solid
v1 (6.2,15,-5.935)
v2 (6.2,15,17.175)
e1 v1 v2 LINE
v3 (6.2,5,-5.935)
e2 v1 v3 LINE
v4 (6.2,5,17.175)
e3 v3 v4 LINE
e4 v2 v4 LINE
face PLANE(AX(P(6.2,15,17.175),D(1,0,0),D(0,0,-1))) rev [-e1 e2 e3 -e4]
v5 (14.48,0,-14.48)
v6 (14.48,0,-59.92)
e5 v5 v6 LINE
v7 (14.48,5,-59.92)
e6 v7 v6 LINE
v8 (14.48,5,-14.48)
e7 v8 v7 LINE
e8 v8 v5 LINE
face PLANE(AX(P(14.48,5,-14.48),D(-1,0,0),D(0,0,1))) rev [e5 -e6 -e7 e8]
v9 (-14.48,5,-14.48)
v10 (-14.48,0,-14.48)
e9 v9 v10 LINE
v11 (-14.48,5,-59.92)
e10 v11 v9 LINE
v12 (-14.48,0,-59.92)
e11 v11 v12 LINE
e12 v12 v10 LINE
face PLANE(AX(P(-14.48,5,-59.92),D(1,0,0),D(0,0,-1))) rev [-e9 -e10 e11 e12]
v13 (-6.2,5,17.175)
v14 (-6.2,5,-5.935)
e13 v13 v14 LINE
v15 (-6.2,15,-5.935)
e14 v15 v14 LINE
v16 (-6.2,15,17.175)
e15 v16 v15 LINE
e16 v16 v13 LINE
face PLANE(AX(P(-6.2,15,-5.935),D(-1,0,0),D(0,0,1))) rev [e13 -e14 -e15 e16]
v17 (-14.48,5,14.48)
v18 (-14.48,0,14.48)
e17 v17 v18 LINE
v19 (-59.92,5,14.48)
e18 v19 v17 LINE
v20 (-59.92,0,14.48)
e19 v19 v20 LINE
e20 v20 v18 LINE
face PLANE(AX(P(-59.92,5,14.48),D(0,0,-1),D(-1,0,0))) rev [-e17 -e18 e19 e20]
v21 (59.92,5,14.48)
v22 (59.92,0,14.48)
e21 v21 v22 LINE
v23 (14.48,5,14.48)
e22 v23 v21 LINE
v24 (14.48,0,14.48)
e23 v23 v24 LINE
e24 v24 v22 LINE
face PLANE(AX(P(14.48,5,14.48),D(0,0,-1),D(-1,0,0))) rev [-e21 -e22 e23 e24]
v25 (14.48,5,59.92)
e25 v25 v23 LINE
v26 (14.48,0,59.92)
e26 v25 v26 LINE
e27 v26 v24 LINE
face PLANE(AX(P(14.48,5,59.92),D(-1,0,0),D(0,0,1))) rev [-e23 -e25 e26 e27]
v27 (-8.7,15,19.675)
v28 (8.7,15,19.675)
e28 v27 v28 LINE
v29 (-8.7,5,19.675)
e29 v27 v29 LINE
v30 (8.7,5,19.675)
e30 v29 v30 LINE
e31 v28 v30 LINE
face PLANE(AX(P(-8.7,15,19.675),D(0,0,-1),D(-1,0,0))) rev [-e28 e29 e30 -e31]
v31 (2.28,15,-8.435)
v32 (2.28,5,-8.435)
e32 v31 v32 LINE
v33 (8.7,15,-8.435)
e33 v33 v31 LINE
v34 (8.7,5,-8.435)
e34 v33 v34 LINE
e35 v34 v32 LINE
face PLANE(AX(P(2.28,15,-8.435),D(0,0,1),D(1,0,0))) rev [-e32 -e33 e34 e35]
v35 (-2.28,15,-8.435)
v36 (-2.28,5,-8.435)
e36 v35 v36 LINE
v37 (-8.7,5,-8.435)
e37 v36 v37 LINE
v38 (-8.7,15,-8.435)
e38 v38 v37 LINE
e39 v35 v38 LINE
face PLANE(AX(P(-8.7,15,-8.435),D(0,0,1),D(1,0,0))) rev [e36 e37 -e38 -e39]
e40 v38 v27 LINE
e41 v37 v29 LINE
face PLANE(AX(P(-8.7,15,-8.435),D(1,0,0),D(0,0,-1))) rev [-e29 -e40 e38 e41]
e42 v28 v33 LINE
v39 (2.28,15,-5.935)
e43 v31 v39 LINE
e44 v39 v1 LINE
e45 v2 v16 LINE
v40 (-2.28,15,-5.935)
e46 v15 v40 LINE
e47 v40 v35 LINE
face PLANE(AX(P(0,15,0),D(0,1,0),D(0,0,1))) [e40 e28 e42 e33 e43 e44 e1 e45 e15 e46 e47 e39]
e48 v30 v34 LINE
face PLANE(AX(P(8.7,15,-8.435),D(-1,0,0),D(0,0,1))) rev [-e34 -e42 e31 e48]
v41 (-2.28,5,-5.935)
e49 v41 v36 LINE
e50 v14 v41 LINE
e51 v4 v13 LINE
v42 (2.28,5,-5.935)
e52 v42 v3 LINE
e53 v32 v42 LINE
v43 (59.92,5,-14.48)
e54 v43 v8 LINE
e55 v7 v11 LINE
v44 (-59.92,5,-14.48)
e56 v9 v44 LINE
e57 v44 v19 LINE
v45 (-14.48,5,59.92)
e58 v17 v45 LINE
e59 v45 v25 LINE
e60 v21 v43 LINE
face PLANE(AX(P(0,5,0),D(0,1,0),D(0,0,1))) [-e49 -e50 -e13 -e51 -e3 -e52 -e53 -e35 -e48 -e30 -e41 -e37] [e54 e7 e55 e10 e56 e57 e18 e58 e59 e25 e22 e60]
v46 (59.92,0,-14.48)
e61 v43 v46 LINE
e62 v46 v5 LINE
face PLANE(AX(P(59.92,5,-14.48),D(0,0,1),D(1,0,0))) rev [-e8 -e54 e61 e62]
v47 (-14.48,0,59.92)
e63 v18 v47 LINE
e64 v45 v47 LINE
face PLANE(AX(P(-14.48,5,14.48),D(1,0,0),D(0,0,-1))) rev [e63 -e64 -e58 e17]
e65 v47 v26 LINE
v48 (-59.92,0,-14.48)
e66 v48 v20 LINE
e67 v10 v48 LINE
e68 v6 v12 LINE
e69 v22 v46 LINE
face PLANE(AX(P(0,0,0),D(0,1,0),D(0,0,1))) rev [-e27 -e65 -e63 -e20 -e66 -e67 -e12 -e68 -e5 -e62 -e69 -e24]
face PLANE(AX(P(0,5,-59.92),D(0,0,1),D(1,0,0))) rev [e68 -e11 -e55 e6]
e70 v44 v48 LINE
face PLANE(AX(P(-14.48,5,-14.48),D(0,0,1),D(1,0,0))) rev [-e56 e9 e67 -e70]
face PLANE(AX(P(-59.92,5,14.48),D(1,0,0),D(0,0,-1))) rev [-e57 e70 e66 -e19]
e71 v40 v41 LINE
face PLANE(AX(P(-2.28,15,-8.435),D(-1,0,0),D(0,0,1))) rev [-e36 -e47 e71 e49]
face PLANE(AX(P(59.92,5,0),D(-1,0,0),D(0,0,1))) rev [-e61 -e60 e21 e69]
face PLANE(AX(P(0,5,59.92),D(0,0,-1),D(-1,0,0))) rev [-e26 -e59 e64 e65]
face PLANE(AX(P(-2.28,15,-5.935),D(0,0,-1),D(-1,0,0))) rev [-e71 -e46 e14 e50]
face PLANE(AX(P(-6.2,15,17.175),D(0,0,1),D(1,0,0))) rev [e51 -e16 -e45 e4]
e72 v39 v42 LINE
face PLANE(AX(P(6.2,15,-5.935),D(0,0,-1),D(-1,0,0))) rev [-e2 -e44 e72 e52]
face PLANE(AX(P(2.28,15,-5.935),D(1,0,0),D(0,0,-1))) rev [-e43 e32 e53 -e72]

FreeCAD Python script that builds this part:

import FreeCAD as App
import Part
import Sketcher

doc = App.newDocument("Part")
body = doc.addObject("PartDesign::Body", "Body")

# Sketch on XZ plane
sketch1 = body.newObject("Sketcher::SketchObject", "Sketch")
sketch1.AttachmentSupport = (doc.getObject("XZ_Plane"), [""])
sketch1.MapMode = "FlatFace"
sketch1.addGeometry(Part.LineSegment(App.Vector(-14.48, -59.92, 0), App.Vector(-14.48, -14.48, 0)), False)
sketch1.addGeometry(Part.LineSegment(App.Vector(-14.48, -14.48, 0), App.Vector(-59.92, -14.48, 0)), False)
sketch1.addGeometry(Part.LineSegment(App.Vector(-59.92, -14.48, 0), App.Vector(-59.92, 14.48, 0)), False)
sketch1.addGeometry(Part.LineSegment(App.Vector(-59.92, 14.48, 0), App.Vector(-14.48, 14.48, 0)), False)
sketch1.addGeometry(Part.LineSegment(App.Vector(-14.48, 14.48, 0), App.Vector(-14.48, 59.92, 0)), False)
sketch1.addGeometry(Part.LineSegment(App.Vector(-14.48, 59.92, 0), App.Vector(14.48, 59.92, 0)), False)
sketch1.addGeometry(Part.LineSegment(App.Vector(14.48, 59.92, 0), App.Vector(14.48, 14.48, 0)), False)
sketch1.addGeometry(Part.LineSegment(App.Vector(14.48, 14.48, 0), App.Vector(59.92, 14.48, 0)), False)
sketch1.addGeometry(Part.LineSegment(App.Vector(59.92, 14.48, 0), App.Vector(59.92, -14.48, 0)), False)
sketch1.addGeometry(Part.LineSegment(App.Vector(59.92, -14.48, 0), App.Vector(14.48, -14.48, 0)), False)
sketch1.addGeometry(Part.LineSegment(App.Vector(14.48, -14.48, 0), App.Vector(14.48, -59.92, 0)), False)
sketch1.addGeometry(Part.LineSegment(App.Vector(14.48, -59.92, 0), App.Vector(-14.48, -59.92, 0)), False)
sketch1.addConstraint(Sketcher.Constraint("Coincident", 0, 2, 1, 1))
sketch1.addConstraint(Sketcher.Constraint("Coincident", 1, 2, 2, 1))
sketch1.addConstraint(Sketcher.Constraint("Coincident", 2, 2, 3, 1))
sketch1.addConstraint(Sketcher.Constraint("Coincident", 3, 2, 4, 1))
sketch1.addConstraint(Sketcher.Constraint("Coincident", 4, 2, 5, 1))
sketch1.addConstraint(Sketcher.Constraint("Coincident", 5, 2, 6, 1))
sketch1.addConstraint(Sketcher.Constraint("Coincident", 6, 2, 7, 1))
sketch1.addConstraint(Sketcher.Constraint("Coincident", 7, 2, 8, 1))
sketch1.addConstraint(Sketcher.Constraint("Coincident", 8, 2, 9, 1))
sketch1.addConstraint(Sketcher.Constraint("Coincident", 9, 2, 10, 1))
sketch1.addConstraint(Sketcher.Constraint("Coincident", 10, 2, 11, 1))
sketch1.addConstraint(Sketcher.Constraint("Coincident", 11, 2, 0, 1))
sketch1.addConstraint(Sketcher.Constraint("Vertical", 0))
sketch1.addConstraint(Sketcher.Constraint("Horizontal", 1))
sketch1.addConstraint(Sketcher.Constraint("Vertical", 2))
sketch1.addConstraint(Sketcher.Constraint("Horizontal", 3))
sketch1.addConstraint(Sketcher.Constraint("Vertical", 4))
sketch1.addConstraint(Sketcher.Constraint("Horizontal", 5))
sketch1.addConstraint(Sketcher.Constraint("Vertical", 6))
sketch1.addConstraint(Sketcher.Constraint("Horizontal", 7))
sketch1.addConstraint(Sketcher.Constraint("Vertical", 8))
sketch1.addConstraint(Sketcher.Constraint("Horizontal", 9))
sketch1.addConstraint(Sketcher.Constraint("Vertical", 10))
sketch1.addConstraint(Sketcher.Constraint("Horizontal", 11))
sketch1.addConstraint(Sketcher.Constraint("Symmetric", 0, 2, 6, 2, -1, 1))
sketch1.addConstraint(Sketcher.Constraint("Symmetric", 2, 2, 8, 2, -1, 1))
sketch1.addConstraint(Sketcher.Constraint("Symmetric", 4, 2, 10, 2, -1, 1))
sketch1.addConstraint(Sketcher.Constraint("Symmetric", 3, 2, 6, 2, -2))
sketch1.addConstraint(Sketcher.Constraint("Equal", 9, 0))
sketch1.addConstraint(Sketcher.Constraint("Equal", 11, 2))
sketch1.addConstraint(Sketcher.Constraint("DistanceX", 1, 2, 1, 1, 45.44))
sketch1.addConstraint(Sketcher.Constraint("DistanceX", 5, 1, 5, 2, 28.96))
pad1 = body.newObject("PartDesign::Pad", "Pad")
pad1.Profile = sketch1
pad1.Length = 5
pad1.Reversed = True

# Sketch on XZ plane
sketch2 = body.newObject("Sketcher::SketchObject", "Sketch001")
sketch2.AttachmentSupport = (doc.getObject("XZ_Plane"), [""])
sketch2.MapMode = "FlatFace"
sketch2.AttachmentOffset = App.Placement(App.Vector(0, 0, -5), App.Rotation())
sketch2.addGeometry(Part.LineSegment(App.Vector(-2.28, -8.435, 0), App.Vector(-8.7, -8.435, 0)), False)
sketch2.addGeometry(Part.LineSegment(App.Vector(-8.7, -8.435, 0), App.Vector(-8.7, 19.675, 0)), False)
sketch2.addGeometry(Part.LineSegment(App.Vector(-8.7, 19.675, 0), App.Vector(8.7, 19.675, 0)), False)
sketch2.addGeometry(Part.LineSegment(App.Vector(8.7, 19.675, 0), App.Vector(8.7, -8.435, 0)), False)
sketch2.addGeometry(Part.LineSegment(App.Vector(8.7, -8.435, 0), App.Vector(2.28, -8.435, 0)), False)
sketch2.addGeometry(Part.LineSegment(App.Vector(2.28, -8.435, 0), App.Vector(2.28, -5.935, 0)), False)
sketch2.addGeometry(Part.LineSegment(App.Vector(2.28, -5.935, 0), App.Vector(6.2, -5.935, 0)), False)
sketch2.addGeometry(Part.LineSegment(App.Vector(6.2, -5.935, 0), App.Vector(6.2, 17.175, 0)), False)
sketch2.addGeometry(Part.LineSegment(App.Vector(6.2, 17.175, 0), App.Vector(-6.2, 17.175, 0)), False)
sketch2.addGeometry(Part.LineSegment(App.Vector(-6.2, 17.175, 0), App.Vector(-6.2, -5.935, 0)), False)
sketch2.addGeometry(Part.LineSegment(App.Vector(-6.2, -5.935, 0), App.Vector(-2.28, -5.935, 0)), False)
sketch2.addGeometry(Part.LineSegment(App.Vector(-2.28, -5.935, 0), App.Vector(-2.28, -8.435, 0)), False)
sketch2.addConstraint(Sketcher.Constraint("Coincident", 0, 2, 1, 1))
sketch2.addConstraint(Sketcher.Constraint("Coincident", 1, 2, 2, 1))
sketch2.addConstraint(Sketcher.Constraint("Coincident", 2, 2, 3, 1))
sketch2.addConstraint(Sketcher.Constraint("Coincident", 3, 2, 4, 1))
sketch2.addConstraint(Sketcher.Constraint("Coincident", 4, 2, 5, 1))
sketch2.addConstraint(Sketcher.Constraint("Coincident", 5, 2, 6, 1))
sketch2.addConstraint(Sketcher.Constraint("Coincident", 6, 2, 7, 1))
sketch2.addConstraint(Sketcher.Constraint("Coincident", 7, 2, 8, 1))
sketch2.addConstraint(Sketcher.Constraint("Coincident", 8, 2, 9, 1))
sketch2.addConstraint(Sketcher.Constraint("Coincident", 9, 2, 10, 1))
sketch2.addConstraint(Sketcher.Constraint("Coincident", 10, 2, 11, 1))
sketch2.addConstraint(Sketcher.Constraint("Coincident", 11, 2, 0, 1))
sketch2.addConstraint(Sketcher.Constraint("Horizontal", 0))
sketch2.addConstraint(Sketcher.Constraint("Vertical", 1))
sketch2.addConstraint(Sketcher.Constraint("Horizontal", 2))
sketch2.addConstraint(Sketcher.Constraint("Vertical", 3))
sketch2.addConstraint(Sketcher.Constraint("Horizontal", 4))
sketch2.addConstraint(Sketcher.Constraint("Vertical", 5))
sketch2.addConstraint(Sketcher.Constraint("Horizontal", 6))
sketch2.addConstraint(Sketcher.Constraint("Vertical", 7))
sketch2.addConstraint(Sketcher.Constraint("Horizontal", 8))
sketch2.addConstraint(Sketcher.Constraint("Vertical", 9))
sketch2.addConstraint(Sketcher.Constraint("Horizontal", 10))
sketch2.addConstraint(Sketcher.Constraint("Vertical", 11))
sketch2.addConstraint(Sketcher.Constraint("Symmetric", 0, 2, 3, 2, -2))
sketch2.addConstraint(Sketcher.Constraint("Symmetric", 6, 2, 9, 2, -2))
sketch2.addConstraint(Sketcher.Constraint("Equal", 0, 4))
sketch2.addConstraint(Sketcher.Constraint("DistanceX", 2, 1, 2, 2, 17.4))
sketch2.addConstraint(Sketcher.Constraint("DistanceX", 8, 2, 8, 1, 12.4))
sketch2.addConstraint(Sketcher.Constraint("DistanceY", 5, 1, 5, 2, 2.5))
sketch2.addConstraint(Sketcher.Constraint("DistanceX", 0, 2, 0, 1, 6.42))
sketch2.addConstraint(Sketcher.Constraint("DistanceY", 1, 1, 1, 2, 28.11))
sketch2.addConstraint(Sketcher.Constraint("DistanceY", 7, 1, 7, 2, 23.11))
sketch2.addConstraint(Sketcher.Constraint("DistanceY", 0, 2, -1, 1, 8.435))
pad2 = body.newObject("PartDesign::Pad", "Pad001")
pad2.Profile = sketch2
pad2.Length = 10
pad2.Reversed = True

doc.recompute()
